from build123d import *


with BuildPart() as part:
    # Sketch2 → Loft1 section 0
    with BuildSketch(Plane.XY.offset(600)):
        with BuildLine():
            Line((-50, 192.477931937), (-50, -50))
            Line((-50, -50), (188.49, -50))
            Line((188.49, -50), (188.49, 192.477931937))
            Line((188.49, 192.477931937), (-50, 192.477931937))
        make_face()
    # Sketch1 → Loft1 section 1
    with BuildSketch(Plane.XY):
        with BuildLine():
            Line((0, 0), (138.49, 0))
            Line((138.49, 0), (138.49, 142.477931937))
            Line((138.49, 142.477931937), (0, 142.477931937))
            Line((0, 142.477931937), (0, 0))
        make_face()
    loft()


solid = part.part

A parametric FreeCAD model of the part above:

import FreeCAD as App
import Part
import Sketcher
from FreeCAD import Vector
Q = App.Units.Quantity

doc = App.newDocument("Part")
body = doc.addObject("PartDesign::Body", "Body")

# Sketch on XY plane
sketch1 = body.newObject("Sketcher::SketchObject", "Sketch")
sketch1.AttachmentSupport = (doc.getObject("XY_Plane"), [""])
sketch1.MapMode = "FlatFace"
sketch1.AttachmentOffset = App.Placement(Vector(0, 0, 600), App.Rotation())
sketch1.addGeometry([
    Part.LineSegment(Vector(-50, 192.477932, 0), Vector(-50, -50, 0)),
    Part.LineSegment(Vector(-50, -50, 0), Vector(188.49, -50, 0)),
    Part.LineSegment(Vector(188.49, -50, 0), Vector(188.49, 192.477932, 0)),
    Part.LineSegment(Vector(188.49, 192.477932, 0), Vector(-50, 192.477932, 0)),
], False)
sketch1.addConstraint([
    Sketcher.Constraint("Coincident", 0, 2, 1, 1),
    Sketcher.Constraint("Coincident", 1, 2, 2, 1),
    Sketcher.Constraint("Coincident", 2, 2, 3, 1),
    Sketcher.Constraint("Coincident", 3, 2, 0, 1),
    Sketcher.Constraint("Vertical", 0),
    Sketcher.Constraint("Horizontal", 1),
    Sketcher.Constraint("Vertical", 2),
    Sketcher.Constraint("Horizontal", 3),
    Sketcher.Constraint("DistanceX", 0, 2, -1, 1, Q("50 mm")),
    Sketcher.Constraint("DistanceY", 0, 2, -1, 1, Q("50 mm")),
    Sketcher.Constraint("DistanceX", 1, 1, 1, 2, Q("238.49 mm")),
    Sketcher.Constraint("DistanceY", 0, 2, 0, 1, Q("242.477932 mm")),
])

# Sketch on XY plane
sketch2 = body.newObject("Sketcher::SketchObject", "Sketch001")
sketch2.AttachmentSupport = (doc.getObject("XY_Plane"), [""])
sketch2.MapMode = "FlatFace"
sketch2.addGeometry([
    Part.LineSegment(Vector(0, 0, 0), Vector(138.49, 0, 0)),
    Part.LineSegment(Vector(138.49, 0, 0), Vector(138.49, 142.477932, 0)),
    Part.LineSegment(Vector(138.49, 142.477932, 0), Vector(0, 142.477932, 0)),
    Part.LineSegment(Vector(0, 142.477932, 0), Vector(0, 0, 0)),
], False)
sketch2.addConstraint([
    Sketcher.Constraint("Coincident", 0, 2, 1, 1),
    Sketcher.Constraint("Coincident", 1, 2, 2, 1),
    Sketcher.Constraint("Coincident", 2, 2, 3, 1),
    Sketcher.Constraint("Coincident", 3, 2, 0, 1),
    Sketcher.Constraint("Horizontal", 0),
    Sketcher.Constraint("Vertical", 1),
    Sketcher.Constraint("Horizontal", 2),
    Sketcher.Constraint("Vertical", 3),
    Sketcher.Constraint("Coincident", 3, 2, -1, 1),
    Sketcher.Constraint("DistanceX", 0, 1, 0, 2, Q("138.49 mm")),
    Sketcher.Constraint("DistanceY", 1, 1, 1, 2, Q("142.477932 mm")),
])

additiveloft = body.newObject("PartDesign::AdditiveLoft", "AdditiveLoft")
additiveloft.Profile = sketch1
additiveloft.Sections = [sketch2]

doc.recompute()
